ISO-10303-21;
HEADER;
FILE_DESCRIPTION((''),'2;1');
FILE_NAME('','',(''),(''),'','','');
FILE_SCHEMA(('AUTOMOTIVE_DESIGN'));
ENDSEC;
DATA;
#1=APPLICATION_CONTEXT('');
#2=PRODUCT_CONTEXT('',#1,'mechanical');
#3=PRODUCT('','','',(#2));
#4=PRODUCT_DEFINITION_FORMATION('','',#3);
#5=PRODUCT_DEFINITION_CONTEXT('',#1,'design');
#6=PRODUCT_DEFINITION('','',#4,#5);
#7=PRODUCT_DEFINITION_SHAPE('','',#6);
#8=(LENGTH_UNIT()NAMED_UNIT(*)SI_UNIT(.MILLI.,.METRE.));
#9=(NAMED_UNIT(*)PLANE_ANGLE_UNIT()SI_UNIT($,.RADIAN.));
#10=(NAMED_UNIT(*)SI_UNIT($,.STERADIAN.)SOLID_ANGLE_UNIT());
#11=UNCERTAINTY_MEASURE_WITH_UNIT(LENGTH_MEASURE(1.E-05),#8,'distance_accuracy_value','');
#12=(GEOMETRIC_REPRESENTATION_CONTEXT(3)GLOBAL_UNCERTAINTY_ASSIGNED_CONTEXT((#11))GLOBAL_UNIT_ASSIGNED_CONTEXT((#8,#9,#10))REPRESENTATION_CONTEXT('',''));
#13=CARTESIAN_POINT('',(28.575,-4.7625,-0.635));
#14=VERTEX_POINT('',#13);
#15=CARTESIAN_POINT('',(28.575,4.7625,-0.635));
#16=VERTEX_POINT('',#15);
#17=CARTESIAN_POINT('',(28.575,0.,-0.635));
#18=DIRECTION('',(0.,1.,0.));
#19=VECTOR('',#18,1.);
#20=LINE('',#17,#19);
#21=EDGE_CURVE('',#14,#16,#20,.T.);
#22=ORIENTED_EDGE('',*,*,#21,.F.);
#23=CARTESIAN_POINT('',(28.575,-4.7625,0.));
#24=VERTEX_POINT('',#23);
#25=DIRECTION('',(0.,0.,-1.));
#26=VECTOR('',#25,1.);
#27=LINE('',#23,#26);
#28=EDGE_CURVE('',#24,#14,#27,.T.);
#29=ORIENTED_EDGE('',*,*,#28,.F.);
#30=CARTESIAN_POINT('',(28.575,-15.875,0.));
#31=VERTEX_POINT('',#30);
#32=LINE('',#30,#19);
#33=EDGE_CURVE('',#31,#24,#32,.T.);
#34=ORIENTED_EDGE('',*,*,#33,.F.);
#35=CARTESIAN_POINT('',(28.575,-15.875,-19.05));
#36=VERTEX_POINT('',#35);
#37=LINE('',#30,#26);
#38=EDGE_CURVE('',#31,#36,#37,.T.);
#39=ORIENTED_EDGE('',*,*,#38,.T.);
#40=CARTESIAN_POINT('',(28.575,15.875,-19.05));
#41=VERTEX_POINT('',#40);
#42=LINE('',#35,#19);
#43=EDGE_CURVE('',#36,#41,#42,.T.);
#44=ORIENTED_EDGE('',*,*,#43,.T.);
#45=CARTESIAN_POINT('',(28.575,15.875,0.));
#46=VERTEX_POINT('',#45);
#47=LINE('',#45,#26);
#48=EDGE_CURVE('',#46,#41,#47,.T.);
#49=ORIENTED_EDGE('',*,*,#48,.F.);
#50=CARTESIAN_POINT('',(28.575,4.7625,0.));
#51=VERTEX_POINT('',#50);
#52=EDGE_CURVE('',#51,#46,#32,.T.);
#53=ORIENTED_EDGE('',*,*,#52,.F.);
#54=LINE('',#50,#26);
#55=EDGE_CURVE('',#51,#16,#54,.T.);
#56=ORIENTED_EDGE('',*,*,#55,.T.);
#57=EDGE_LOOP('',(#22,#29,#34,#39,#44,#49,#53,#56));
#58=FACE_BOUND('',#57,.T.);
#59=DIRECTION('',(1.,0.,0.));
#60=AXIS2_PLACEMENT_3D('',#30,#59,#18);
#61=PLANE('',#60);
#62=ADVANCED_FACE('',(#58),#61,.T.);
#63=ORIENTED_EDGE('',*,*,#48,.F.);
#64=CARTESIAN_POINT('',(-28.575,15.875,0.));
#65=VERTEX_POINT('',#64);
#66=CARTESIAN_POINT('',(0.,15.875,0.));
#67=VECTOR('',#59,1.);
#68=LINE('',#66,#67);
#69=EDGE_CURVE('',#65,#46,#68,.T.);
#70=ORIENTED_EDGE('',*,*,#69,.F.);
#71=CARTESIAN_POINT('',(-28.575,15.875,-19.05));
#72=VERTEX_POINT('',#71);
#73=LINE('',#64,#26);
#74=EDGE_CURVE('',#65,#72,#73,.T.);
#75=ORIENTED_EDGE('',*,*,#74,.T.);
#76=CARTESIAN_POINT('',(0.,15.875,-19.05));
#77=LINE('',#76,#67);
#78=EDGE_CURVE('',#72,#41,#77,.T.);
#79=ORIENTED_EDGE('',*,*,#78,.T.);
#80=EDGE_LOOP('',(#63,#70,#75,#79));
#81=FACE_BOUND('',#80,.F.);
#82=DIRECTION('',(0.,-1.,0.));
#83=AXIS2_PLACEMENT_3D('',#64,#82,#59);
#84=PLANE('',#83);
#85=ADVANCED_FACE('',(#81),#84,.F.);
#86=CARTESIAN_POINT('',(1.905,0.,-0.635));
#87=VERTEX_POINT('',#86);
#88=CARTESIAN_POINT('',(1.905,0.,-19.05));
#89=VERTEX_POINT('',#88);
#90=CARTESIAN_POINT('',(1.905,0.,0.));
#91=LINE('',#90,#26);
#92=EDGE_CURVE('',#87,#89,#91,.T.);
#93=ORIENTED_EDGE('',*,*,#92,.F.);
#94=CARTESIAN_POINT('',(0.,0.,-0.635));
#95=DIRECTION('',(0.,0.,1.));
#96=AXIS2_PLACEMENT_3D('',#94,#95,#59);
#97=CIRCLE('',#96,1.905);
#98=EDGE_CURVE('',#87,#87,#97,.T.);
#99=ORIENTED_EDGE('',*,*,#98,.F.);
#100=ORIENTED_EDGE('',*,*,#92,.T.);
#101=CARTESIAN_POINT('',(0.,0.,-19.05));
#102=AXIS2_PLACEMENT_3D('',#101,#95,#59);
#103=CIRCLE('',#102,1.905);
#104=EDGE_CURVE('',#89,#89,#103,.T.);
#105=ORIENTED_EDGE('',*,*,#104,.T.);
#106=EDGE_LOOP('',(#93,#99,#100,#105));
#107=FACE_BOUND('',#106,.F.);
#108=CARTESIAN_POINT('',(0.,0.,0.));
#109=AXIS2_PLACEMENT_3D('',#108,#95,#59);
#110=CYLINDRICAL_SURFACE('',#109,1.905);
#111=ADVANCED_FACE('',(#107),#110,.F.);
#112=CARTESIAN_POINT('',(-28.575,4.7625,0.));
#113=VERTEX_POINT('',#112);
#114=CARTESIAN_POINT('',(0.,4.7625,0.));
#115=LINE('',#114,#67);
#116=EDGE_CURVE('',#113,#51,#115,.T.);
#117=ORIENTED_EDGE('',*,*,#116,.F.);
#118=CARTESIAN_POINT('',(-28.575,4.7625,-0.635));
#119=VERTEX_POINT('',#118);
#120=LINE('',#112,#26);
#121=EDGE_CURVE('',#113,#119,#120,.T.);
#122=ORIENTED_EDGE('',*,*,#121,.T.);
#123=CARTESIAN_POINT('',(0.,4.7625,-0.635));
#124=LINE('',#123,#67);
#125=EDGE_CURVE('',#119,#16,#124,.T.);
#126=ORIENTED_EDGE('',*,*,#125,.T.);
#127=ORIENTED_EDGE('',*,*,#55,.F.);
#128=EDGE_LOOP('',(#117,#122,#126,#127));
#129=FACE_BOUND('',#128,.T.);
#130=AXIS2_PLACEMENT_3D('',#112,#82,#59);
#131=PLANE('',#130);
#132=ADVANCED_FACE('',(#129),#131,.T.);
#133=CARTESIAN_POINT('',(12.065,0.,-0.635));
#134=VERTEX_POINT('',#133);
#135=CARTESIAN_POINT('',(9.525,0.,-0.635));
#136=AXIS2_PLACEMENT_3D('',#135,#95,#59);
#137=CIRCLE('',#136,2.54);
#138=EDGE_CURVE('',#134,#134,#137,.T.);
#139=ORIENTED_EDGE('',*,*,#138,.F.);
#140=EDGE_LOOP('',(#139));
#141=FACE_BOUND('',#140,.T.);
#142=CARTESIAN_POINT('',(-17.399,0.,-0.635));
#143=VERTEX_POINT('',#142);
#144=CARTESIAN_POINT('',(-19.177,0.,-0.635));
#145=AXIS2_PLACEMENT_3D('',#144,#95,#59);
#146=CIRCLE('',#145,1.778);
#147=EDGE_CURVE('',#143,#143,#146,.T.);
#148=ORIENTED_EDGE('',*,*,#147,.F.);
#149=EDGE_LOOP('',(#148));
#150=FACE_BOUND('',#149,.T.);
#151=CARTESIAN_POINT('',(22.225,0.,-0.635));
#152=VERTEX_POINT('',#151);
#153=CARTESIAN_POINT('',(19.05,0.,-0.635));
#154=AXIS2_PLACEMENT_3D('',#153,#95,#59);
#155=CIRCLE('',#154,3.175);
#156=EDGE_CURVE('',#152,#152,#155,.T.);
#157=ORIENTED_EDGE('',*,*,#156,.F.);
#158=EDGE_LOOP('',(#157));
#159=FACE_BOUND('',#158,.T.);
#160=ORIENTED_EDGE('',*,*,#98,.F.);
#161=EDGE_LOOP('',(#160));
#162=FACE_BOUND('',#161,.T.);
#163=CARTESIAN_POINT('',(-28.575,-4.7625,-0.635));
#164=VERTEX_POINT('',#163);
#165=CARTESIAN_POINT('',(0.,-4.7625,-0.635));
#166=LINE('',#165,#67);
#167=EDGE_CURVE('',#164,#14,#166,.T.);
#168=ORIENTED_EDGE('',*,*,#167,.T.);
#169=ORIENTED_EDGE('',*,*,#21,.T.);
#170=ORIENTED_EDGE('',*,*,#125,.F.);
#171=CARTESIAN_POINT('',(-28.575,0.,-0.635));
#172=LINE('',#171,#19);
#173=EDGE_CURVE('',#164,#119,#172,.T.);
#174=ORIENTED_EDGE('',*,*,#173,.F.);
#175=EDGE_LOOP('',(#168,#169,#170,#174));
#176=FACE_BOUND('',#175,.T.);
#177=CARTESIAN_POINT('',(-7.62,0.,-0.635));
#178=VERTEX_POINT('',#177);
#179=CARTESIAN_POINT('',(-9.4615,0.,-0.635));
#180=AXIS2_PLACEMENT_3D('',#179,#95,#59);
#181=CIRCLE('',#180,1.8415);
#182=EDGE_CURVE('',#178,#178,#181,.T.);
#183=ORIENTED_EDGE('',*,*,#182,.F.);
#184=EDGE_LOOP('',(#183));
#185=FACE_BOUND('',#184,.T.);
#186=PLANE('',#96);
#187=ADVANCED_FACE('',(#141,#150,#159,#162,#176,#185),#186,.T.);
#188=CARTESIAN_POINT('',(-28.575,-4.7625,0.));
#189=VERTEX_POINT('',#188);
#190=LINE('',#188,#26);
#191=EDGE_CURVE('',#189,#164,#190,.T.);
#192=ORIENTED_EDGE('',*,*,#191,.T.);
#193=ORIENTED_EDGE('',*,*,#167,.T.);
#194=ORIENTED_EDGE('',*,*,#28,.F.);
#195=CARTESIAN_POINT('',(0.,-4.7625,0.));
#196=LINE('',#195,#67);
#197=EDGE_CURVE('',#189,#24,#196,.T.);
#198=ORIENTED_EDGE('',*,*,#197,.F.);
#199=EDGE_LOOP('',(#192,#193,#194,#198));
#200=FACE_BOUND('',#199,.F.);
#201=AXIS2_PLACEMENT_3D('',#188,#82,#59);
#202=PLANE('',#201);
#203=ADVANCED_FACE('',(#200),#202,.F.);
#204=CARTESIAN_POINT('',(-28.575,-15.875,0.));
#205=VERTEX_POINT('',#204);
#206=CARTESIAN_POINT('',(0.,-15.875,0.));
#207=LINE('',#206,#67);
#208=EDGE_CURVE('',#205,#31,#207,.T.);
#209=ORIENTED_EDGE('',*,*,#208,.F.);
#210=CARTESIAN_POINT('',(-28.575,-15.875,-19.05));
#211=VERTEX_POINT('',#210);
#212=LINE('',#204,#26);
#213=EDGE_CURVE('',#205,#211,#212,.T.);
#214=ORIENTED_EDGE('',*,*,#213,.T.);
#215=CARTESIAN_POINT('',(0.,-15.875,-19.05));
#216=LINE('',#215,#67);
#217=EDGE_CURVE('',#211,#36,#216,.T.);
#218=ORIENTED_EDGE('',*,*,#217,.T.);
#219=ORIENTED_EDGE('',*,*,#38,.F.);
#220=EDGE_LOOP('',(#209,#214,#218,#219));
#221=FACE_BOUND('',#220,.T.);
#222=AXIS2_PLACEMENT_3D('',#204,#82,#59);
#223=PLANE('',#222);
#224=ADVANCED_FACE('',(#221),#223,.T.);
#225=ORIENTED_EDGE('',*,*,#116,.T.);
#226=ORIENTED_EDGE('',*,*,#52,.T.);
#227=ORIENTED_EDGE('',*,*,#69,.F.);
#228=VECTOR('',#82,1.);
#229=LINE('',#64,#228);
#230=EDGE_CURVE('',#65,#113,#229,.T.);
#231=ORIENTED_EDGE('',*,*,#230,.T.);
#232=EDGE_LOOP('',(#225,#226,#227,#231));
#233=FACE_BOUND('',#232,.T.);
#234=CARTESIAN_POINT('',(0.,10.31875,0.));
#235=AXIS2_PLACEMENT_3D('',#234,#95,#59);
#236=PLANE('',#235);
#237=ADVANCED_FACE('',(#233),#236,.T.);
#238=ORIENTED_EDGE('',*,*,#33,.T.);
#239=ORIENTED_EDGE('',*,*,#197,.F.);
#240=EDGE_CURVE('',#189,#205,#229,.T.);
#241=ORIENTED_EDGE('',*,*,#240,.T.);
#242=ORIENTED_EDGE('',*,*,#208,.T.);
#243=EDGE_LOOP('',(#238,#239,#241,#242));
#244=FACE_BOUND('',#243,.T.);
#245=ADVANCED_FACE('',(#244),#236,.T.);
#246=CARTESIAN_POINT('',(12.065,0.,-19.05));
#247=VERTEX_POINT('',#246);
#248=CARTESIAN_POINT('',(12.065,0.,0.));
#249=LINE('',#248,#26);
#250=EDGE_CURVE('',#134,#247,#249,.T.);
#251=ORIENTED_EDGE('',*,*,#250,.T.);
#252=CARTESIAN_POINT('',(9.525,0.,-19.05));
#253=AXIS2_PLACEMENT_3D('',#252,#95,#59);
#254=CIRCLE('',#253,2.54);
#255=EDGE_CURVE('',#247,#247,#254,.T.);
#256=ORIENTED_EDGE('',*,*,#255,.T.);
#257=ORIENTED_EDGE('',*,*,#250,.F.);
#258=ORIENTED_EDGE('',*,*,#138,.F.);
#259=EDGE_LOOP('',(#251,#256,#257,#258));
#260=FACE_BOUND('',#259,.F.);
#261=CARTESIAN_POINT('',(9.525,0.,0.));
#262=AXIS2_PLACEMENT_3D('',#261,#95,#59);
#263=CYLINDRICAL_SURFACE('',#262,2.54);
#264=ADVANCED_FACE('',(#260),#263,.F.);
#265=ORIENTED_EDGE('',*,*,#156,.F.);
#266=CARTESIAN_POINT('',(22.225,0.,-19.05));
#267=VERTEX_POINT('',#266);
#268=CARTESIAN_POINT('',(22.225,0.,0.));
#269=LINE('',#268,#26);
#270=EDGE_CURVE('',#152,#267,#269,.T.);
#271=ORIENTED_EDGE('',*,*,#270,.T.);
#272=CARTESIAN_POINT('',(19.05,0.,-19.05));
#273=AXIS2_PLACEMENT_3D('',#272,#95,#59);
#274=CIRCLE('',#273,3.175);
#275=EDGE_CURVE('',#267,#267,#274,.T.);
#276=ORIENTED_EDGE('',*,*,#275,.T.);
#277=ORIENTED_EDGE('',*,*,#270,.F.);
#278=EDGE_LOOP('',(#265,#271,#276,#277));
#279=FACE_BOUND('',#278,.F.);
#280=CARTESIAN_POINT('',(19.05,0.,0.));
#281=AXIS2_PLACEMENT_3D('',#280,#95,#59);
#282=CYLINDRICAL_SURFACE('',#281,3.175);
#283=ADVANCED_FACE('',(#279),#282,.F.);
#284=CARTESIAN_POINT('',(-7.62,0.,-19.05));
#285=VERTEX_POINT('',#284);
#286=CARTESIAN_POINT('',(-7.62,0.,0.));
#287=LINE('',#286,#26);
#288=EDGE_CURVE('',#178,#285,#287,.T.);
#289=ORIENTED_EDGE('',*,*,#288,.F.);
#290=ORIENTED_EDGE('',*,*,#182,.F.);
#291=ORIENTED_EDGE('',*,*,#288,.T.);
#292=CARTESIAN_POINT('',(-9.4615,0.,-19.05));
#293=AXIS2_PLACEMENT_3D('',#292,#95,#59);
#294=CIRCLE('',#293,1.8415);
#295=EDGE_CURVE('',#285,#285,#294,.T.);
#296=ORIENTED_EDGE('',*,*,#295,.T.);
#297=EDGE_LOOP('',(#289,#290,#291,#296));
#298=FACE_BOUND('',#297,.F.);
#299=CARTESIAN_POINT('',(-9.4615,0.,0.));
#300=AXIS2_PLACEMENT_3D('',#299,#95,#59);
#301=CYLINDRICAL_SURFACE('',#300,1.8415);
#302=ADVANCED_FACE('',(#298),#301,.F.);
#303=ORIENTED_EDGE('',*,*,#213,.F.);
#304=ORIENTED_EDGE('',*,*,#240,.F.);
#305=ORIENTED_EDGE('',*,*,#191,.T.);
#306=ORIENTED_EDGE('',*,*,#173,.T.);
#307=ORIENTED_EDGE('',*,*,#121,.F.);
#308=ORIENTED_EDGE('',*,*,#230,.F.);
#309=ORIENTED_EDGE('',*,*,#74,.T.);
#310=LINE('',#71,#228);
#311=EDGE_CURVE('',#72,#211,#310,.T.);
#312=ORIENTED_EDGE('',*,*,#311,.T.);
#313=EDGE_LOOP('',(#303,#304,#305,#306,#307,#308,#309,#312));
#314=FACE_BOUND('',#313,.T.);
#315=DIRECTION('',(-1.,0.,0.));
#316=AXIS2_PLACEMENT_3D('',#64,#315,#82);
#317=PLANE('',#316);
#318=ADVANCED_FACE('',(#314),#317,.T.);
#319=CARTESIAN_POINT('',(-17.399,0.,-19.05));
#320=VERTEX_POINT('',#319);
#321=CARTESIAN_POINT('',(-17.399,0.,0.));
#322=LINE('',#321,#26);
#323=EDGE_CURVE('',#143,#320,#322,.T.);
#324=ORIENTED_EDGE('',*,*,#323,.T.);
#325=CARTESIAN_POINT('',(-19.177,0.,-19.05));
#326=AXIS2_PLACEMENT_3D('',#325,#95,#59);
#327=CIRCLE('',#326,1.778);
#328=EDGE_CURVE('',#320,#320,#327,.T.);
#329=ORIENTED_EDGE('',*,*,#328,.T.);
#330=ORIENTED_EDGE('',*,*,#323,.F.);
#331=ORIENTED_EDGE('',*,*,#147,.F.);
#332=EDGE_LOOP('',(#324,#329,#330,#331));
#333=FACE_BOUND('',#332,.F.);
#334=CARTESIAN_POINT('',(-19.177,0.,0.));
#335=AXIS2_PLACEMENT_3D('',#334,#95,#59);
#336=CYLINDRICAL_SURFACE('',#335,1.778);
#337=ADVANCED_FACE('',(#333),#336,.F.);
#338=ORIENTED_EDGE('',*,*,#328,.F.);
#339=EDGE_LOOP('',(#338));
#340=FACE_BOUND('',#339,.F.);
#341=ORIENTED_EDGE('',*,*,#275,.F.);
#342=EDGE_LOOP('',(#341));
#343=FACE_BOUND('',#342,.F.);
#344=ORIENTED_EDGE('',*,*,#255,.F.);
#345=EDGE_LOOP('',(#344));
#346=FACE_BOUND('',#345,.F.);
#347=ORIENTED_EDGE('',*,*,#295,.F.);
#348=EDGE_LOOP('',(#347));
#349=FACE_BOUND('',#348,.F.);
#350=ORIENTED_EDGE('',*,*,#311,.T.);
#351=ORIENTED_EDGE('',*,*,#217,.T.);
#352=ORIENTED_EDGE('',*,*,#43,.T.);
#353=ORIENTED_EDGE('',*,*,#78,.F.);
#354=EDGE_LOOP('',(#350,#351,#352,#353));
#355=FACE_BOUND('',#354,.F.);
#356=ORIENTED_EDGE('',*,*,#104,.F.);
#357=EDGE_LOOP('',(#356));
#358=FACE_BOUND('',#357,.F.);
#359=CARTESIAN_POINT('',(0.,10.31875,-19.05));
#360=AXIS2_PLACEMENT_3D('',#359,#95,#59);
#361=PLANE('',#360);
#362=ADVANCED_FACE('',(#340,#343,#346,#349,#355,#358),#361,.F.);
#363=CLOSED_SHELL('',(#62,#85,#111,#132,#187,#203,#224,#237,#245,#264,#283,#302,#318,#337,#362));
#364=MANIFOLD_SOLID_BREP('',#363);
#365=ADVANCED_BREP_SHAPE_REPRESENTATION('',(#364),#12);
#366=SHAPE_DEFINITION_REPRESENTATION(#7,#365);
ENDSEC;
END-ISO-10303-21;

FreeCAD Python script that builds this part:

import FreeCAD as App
import Part
import Sketcher
from FreeCAD import Vector
Q = App.Units.Quantity

doc = App.newDocument("Part")
body = doc.addObject("PartDesign::Body", "Body")

sketch1 = body.newObject("Sketcher::SketchObject", "Sketch")
sketch1.AttachmentSupport = (doc.getObject("XY_Plane"), [""])
sketch1.MapMode = "FlatFace"
sketch1.addGeometry([
    Part.LineSegment(Vector(-28.6, 15.9, 0), Vector(-28.6, -15.9, 0)),
    Part.LineSegment(Vector(-28.6, -15.9, 0), Vector(28.6, -15.9, 0)),
    Part.LineSegment(Vector(28.6, -15.9, 0), Vector(28.6, 15.9, 0)),
    Part.LineSegment(Vector(28.6, 15.9, 0), Vector(-28.6, 15.9, 0)),
    Part.Circle(Vector(-19.2, 0, 0), Vector(0, 0, 1), 1.8),
    Part.Circle(Vector(-9.5, 0, 0), Vector(0, 0, 1), 1.8),
    Part.Circle(Vector(0, 0, 0), Vector(0, 0, 1), 1.9),
    Part.Circle(Vector(9.5, 0, 0), Vector(0, 0, 1), 2.5),
    Part.Circle(Vector(19.1, 0, 0), Vector(0, 0, 1), 3.2),
], False)
sketch1.addConstraint([
    Sketcher.Constraint("Coincident", 0, 2, 1, 1),
    Sketcher.Constraint("Coincident", 1, 2, 2, 1),
    Sketcher.Constraint("Coincident", 2, 2, 3, 1),
    Sketcher.Constraint("Coincident", 3, 2, 0, 1),
    Sketcher.Constraint("Vertical", 0),
    Sketcher.Constraint("Horizontal", 1),
    Sketcher.Constraint("Vertical", 2),
    Sketcher.Constraint("Horizontal", 3),
    Sketcher.Constraint("Coincident", 6, 3, -1, 1),
    Sketcher.Constraint("Symmetric", 0, 2, 2, 2, -1, 1),
    Sketcher.Constraint("PointOnObject", 4, 3, -1),
    Sketcher.Constraint("PointOnObject", 5, 3, -1),
    Sketcher.Constraint("PointOnObject", 7, 3, -1),
    Sketcher.Constraint("PointOnObject", 8, 3, -1),
    Sketcher.Constraint("Diameter", 7, Q("0.2 in")),
    Sketcher.Constraint("Diameter", 4, Q("0.14 in")),
    Sketcher.Constraint("Diameter", 6, Q("0.15 in")),
    Sketcher.Constraint("Diameter", 8, Q("0.25 in")),
    Sketcher.Constraint("Diameter", 5, Q("0.145 in")),
    Sketcher.Constraint("DistanceX", 1, 1, 1, 2, Q("2.25 in")),
    Sketcher.Constraint("DistanceY", 0, 2, 0, 1, Q("1.25 in")),
    Sketcher.Constraint("DistanceX", 0, 2, 7, 3, Q("1.5 in")),
    Sketcher.Constraint("DistanceX", -1, 1, 8, 3, Q("0.75 in")),
    Sketcher.Constraint("DistanceX", 4, 3, 7, 3, Q("1.13 in")),
    Sketcher.Constraint("DistanceX", 5, 3, -1, 1, Q("0.3725 in")),
])
pad1 = body.newObject("PartDesign::Pad", "Pad")
pad1.Profile = sketch1
pad1.Length = Q("0.75 in")
pad1.Reversed = True

sketch2 = body.newObject("Sketcher::SketchObject", "Sketch001")
sketch2.AttachmentSupport = (doc.getObject("XY_Plane"), [""])
sketch2.MapMode = "FlatFace"
sketch2.addGeometry([
    Part.LineSegment(Vector(-28.6, 4.8, 0), Vector(-28.6, -4.8, 0)),
    Part.LineSegment(Vector(-28.6, -4.8, 0), Vector(28.6, -4.8, 0)),
    Part.LineSegment(Vector(28.6, -4.8, 0), Vector(28.6, 4.8, 0)),
    Part.LineSegment(Vector(28.6, 4.8, 0), Vector(-28.6, 4.8, 0)),
    Part.Circle(Vector(-19.2, 0, 0), Vector(0, 0, 1), 1.8),
    Part.Circle(Vector(-9.5, 0, 0), Vector(0, 0, 1), 1.8),
    Part.Circle(Vector(0, 0, 0), Vector(0, 0, 1), 1.9),
    Part.Circle(Vector(9.5, 0, 0), Vector(0, 0, 1), 2.5),
    Part.Circle(Vector(19.1, 0, 0), Vector(0, 0, 1), 3.2),
], False)
sketch2.addConstraint([
    Sketcher.Constraint("Coincident", 0, 2, 1, 1),
    Sketcher.Constraint("Coincident", 1, 2, 2, 1),
    Sketcher.Constraint("Coincident", 2, 2, 3, 1),
    Sketcher.Constraint("Coincident", 3, 2, 0, 1),
    Sketcher.Constraint("Vertical", 0),
    Sketcher.Constraint("Horizontal", 1),
    Sketcher.Constraint("Vertical", 2),
    Sketcher.Constraint("Horizontal", 3),
    Sketcher.Constraint("Coincident", 6, 3, -1, 1),
    Sketcher.Constraint("Symmetric", 0, 2, 2, 2, -1, 1),
    Sketcher.Constraint("PointOnObject", 4, 3, -1),
    Sketcher.Constraint("PointOnObject", 5, 3, -1),
    Sketcher.Constraint("PointOnObject", 7, 3, -1),
    Sketcher.Constraint("PointOnObject", 8, 3, -1),
    Sketcher.Constraint("Diameter", 7, Q("0.2 in")),
    Sketcher.Constraint("Diameter", 4, Q("0.14 in")),
    Sketcher.Constraint("Diameter", 6, Q("0.15 in")),
    Sketcher.Constraint("Diameter", 8, Q("0.25 in")),
    Sketcher.Constraint("Diameter", 5, Q("0.145 in")),
    Sketcher.Constraint("DistanceX", 1, 1, 1, 2, Q("2.25 in")),
    Sketcher.Constraint("DistanceX", 0, 2, 7, 3, Q("1.5 in")),
    Sketcher.Constraint("DistanceY", 0, 2, 0, 1, Q("0.375 in")),
    Sketcher.Constraint("DistanceX", -1, 1, 8, 3, Q("0.75 in")),
    Sketcher.Constraint("DistanceX", 4, 3, 7, 3, Q("1.13 in")),
    Sketcher.Constraint("DistanceX", 5, 3, -1, 1, Q("0.3725 in")),
])
pocket1 = body.newObject("PartDesign::Pocket", "Pocket")
pocket1.Profile = sketch2
pocket1.Length = Q("0.025 in")

doc.recompute()
